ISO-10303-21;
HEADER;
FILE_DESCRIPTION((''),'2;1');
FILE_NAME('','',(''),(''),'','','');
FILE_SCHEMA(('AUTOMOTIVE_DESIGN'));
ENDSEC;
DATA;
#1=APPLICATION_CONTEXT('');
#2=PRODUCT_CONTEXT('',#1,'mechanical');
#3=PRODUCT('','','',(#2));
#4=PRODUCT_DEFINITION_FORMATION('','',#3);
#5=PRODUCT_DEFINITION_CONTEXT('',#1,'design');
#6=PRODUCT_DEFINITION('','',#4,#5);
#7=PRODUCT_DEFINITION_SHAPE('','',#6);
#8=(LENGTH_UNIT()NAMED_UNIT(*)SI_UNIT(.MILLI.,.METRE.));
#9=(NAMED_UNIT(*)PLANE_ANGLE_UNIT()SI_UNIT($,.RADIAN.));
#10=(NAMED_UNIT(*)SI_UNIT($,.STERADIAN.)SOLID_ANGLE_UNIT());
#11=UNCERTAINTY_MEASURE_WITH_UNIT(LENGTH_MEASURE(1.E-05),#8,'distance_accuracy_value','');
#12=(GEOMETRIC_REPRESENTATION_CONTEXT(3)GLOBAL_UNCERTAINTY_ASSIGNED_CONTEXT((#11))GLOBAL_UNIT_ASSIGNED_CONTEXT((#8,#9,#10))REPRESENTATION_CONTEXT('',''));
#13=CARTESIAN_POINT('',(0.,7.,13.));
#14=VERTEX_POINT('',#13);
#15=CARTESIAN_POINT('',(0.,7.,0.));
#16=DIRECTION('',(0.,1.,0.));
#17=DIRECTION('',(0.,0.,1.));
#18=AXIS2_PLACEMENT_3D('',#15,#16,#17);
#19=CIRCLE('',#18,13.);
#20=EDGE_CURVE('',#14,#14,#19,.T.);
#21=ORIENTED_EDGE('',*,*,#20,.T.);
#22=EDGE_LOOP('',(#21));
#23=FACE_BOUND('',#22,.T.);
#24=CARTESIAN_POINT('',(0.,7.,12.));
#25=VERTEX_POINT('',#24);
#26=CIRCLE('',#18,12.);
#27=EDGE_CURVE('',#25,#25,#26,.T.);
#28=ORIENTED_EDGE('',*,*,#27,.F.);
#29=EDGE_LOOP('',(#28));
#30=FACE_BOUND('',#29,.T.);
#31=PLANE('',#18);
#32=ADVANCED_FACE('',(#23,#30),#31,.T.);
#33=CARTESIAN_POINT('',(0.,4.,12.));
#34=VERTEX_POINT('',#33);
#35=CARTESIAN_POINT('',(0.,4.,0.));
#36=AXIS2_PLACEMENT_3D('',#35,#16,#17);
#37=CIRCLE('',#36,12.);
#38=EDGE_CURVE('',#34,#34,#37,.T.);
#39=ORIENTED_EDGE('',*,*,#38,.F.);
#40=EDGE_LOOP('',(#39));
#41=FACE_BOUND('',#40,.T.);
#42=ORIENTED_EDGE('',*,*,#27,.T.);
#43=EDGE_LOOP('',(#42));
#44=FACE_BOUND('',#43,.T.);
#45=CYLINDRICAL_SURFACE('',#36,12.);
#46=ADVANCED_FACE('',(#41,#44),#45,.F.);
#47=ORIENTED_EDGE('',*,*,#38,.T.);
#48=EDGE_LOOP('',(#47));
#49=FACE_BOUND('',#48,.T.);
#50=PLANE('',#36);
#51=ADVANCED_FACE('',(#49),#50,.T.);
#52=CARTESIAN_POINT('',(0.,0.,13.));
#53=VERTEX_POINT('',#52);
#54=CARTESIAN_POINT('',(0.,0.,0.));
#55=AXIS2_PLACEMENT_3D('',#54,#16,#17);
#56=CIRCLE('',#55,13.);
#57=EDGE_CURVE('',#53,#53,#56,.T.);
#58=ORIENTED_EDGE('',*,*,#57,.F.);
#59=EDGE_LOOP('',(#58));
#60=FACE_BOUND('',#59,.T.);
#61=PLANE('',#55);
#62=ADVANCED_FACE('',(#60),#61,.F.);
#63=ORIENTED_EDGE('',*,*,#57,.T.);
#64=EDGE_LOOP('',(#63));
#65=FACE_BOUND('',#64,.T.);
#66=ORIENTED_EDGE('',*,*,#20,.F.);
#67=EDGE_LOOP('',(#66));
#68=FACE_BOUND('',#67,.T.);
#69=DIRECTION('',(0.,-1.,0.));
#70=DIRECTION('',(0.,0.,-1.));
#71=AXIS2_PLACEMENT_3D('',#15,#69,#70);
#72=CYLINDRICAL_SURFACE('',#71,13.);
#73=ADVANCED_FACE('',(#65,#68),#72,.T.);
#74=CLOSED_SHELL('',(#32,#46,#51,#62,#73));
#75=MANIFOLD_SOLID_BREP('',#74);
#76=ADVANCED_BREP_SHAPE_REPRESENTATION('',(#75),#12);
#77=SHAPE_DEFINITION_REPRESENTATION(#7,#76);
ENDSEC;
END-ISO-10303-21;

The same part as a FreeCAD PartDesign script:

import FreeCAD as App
import Part
import Sketcher
Q = App.Units.Quantity

doc = App.newDocument("Part")
params = doc.addObject("Spreadsheet::Sheet", "Params")
for row, (alias, value) in enumerate([
    ("sketch1_diameter", "26 mm"),
    ("pad1_length", "7 mm"),
    ("sketch2_diameter", "24 mm"),
    ("pocket1_length", "3 mm"),
], start=1):
    params.set(f"A{row}", alias)
    params.set(f"B{row}", "=" + value)
    params.setAlias(f"B{row}", alias)

body = doc.addObject("PartDesign::Body", "Body")

# Sketch on XZ plane
sketch1 = body.newObject("Sketcher::SketchObject", "Sketch")
sketch1.AttachmentSupport = (doc.getObject("XZ_Plane"), [""])
sketch1.MapMode = "FlatFace"
sketch1.addGeometry(Part.Circle(App.Vector(0, 0, 0), App.Vector(0, 0, 1), 13), False)
sketch1.addConstraint(Sketcher.Constraint("Coincident", 0, 3, -1, 1))
sketch1.addConstraint(Sketcher.Constraint("Diameter", 0, Q("26 mm")))
sketch1.setExpression("Constraints[1]", "Params.sketch1_diameter")
pad1 = body.newObject("PartDesign::Pad", "Pad")
pad1.Profile = sketch1
pad1.setExpression("Length", "Params.pad1_length")
pad1.Reversed = True

# Sketch on XZ plane
sketch2 = body.newObject("Sketcher::SketchObject", "Sketch001")
sketch2.AttachmentSupport = (doc.getObject("XZ_Plane"), [""])
sketch2.MapMode = "FlatFace"
sketch2.AttachmentOffset = App.Placement(App.Vector(0, 0, -7), App.Rotation())
sketch2.addGeometry(Part.Circle(App.Vector(0, 0, 0), App.Vector(0, 0, 1), 12), False)
sketch2.addConstraint(Sketcher.Constraint("Coincident", 0, 3, -1, 1))
sketch2.addConstraint(Sketcher.Constraint("Diameter", 0, Q("24 mm")))
sketch2.setExpression("Constraints[1]", "Params.sketch2_diameter")
pocket1 = body.newObject("PartDesign::Pocket", "Pocket")
pocket1.Profile = sketch2
pocket1.setExpression("Length", "Params.pocket1_length")
pocket1.Reversed = True

doc.recompute()
